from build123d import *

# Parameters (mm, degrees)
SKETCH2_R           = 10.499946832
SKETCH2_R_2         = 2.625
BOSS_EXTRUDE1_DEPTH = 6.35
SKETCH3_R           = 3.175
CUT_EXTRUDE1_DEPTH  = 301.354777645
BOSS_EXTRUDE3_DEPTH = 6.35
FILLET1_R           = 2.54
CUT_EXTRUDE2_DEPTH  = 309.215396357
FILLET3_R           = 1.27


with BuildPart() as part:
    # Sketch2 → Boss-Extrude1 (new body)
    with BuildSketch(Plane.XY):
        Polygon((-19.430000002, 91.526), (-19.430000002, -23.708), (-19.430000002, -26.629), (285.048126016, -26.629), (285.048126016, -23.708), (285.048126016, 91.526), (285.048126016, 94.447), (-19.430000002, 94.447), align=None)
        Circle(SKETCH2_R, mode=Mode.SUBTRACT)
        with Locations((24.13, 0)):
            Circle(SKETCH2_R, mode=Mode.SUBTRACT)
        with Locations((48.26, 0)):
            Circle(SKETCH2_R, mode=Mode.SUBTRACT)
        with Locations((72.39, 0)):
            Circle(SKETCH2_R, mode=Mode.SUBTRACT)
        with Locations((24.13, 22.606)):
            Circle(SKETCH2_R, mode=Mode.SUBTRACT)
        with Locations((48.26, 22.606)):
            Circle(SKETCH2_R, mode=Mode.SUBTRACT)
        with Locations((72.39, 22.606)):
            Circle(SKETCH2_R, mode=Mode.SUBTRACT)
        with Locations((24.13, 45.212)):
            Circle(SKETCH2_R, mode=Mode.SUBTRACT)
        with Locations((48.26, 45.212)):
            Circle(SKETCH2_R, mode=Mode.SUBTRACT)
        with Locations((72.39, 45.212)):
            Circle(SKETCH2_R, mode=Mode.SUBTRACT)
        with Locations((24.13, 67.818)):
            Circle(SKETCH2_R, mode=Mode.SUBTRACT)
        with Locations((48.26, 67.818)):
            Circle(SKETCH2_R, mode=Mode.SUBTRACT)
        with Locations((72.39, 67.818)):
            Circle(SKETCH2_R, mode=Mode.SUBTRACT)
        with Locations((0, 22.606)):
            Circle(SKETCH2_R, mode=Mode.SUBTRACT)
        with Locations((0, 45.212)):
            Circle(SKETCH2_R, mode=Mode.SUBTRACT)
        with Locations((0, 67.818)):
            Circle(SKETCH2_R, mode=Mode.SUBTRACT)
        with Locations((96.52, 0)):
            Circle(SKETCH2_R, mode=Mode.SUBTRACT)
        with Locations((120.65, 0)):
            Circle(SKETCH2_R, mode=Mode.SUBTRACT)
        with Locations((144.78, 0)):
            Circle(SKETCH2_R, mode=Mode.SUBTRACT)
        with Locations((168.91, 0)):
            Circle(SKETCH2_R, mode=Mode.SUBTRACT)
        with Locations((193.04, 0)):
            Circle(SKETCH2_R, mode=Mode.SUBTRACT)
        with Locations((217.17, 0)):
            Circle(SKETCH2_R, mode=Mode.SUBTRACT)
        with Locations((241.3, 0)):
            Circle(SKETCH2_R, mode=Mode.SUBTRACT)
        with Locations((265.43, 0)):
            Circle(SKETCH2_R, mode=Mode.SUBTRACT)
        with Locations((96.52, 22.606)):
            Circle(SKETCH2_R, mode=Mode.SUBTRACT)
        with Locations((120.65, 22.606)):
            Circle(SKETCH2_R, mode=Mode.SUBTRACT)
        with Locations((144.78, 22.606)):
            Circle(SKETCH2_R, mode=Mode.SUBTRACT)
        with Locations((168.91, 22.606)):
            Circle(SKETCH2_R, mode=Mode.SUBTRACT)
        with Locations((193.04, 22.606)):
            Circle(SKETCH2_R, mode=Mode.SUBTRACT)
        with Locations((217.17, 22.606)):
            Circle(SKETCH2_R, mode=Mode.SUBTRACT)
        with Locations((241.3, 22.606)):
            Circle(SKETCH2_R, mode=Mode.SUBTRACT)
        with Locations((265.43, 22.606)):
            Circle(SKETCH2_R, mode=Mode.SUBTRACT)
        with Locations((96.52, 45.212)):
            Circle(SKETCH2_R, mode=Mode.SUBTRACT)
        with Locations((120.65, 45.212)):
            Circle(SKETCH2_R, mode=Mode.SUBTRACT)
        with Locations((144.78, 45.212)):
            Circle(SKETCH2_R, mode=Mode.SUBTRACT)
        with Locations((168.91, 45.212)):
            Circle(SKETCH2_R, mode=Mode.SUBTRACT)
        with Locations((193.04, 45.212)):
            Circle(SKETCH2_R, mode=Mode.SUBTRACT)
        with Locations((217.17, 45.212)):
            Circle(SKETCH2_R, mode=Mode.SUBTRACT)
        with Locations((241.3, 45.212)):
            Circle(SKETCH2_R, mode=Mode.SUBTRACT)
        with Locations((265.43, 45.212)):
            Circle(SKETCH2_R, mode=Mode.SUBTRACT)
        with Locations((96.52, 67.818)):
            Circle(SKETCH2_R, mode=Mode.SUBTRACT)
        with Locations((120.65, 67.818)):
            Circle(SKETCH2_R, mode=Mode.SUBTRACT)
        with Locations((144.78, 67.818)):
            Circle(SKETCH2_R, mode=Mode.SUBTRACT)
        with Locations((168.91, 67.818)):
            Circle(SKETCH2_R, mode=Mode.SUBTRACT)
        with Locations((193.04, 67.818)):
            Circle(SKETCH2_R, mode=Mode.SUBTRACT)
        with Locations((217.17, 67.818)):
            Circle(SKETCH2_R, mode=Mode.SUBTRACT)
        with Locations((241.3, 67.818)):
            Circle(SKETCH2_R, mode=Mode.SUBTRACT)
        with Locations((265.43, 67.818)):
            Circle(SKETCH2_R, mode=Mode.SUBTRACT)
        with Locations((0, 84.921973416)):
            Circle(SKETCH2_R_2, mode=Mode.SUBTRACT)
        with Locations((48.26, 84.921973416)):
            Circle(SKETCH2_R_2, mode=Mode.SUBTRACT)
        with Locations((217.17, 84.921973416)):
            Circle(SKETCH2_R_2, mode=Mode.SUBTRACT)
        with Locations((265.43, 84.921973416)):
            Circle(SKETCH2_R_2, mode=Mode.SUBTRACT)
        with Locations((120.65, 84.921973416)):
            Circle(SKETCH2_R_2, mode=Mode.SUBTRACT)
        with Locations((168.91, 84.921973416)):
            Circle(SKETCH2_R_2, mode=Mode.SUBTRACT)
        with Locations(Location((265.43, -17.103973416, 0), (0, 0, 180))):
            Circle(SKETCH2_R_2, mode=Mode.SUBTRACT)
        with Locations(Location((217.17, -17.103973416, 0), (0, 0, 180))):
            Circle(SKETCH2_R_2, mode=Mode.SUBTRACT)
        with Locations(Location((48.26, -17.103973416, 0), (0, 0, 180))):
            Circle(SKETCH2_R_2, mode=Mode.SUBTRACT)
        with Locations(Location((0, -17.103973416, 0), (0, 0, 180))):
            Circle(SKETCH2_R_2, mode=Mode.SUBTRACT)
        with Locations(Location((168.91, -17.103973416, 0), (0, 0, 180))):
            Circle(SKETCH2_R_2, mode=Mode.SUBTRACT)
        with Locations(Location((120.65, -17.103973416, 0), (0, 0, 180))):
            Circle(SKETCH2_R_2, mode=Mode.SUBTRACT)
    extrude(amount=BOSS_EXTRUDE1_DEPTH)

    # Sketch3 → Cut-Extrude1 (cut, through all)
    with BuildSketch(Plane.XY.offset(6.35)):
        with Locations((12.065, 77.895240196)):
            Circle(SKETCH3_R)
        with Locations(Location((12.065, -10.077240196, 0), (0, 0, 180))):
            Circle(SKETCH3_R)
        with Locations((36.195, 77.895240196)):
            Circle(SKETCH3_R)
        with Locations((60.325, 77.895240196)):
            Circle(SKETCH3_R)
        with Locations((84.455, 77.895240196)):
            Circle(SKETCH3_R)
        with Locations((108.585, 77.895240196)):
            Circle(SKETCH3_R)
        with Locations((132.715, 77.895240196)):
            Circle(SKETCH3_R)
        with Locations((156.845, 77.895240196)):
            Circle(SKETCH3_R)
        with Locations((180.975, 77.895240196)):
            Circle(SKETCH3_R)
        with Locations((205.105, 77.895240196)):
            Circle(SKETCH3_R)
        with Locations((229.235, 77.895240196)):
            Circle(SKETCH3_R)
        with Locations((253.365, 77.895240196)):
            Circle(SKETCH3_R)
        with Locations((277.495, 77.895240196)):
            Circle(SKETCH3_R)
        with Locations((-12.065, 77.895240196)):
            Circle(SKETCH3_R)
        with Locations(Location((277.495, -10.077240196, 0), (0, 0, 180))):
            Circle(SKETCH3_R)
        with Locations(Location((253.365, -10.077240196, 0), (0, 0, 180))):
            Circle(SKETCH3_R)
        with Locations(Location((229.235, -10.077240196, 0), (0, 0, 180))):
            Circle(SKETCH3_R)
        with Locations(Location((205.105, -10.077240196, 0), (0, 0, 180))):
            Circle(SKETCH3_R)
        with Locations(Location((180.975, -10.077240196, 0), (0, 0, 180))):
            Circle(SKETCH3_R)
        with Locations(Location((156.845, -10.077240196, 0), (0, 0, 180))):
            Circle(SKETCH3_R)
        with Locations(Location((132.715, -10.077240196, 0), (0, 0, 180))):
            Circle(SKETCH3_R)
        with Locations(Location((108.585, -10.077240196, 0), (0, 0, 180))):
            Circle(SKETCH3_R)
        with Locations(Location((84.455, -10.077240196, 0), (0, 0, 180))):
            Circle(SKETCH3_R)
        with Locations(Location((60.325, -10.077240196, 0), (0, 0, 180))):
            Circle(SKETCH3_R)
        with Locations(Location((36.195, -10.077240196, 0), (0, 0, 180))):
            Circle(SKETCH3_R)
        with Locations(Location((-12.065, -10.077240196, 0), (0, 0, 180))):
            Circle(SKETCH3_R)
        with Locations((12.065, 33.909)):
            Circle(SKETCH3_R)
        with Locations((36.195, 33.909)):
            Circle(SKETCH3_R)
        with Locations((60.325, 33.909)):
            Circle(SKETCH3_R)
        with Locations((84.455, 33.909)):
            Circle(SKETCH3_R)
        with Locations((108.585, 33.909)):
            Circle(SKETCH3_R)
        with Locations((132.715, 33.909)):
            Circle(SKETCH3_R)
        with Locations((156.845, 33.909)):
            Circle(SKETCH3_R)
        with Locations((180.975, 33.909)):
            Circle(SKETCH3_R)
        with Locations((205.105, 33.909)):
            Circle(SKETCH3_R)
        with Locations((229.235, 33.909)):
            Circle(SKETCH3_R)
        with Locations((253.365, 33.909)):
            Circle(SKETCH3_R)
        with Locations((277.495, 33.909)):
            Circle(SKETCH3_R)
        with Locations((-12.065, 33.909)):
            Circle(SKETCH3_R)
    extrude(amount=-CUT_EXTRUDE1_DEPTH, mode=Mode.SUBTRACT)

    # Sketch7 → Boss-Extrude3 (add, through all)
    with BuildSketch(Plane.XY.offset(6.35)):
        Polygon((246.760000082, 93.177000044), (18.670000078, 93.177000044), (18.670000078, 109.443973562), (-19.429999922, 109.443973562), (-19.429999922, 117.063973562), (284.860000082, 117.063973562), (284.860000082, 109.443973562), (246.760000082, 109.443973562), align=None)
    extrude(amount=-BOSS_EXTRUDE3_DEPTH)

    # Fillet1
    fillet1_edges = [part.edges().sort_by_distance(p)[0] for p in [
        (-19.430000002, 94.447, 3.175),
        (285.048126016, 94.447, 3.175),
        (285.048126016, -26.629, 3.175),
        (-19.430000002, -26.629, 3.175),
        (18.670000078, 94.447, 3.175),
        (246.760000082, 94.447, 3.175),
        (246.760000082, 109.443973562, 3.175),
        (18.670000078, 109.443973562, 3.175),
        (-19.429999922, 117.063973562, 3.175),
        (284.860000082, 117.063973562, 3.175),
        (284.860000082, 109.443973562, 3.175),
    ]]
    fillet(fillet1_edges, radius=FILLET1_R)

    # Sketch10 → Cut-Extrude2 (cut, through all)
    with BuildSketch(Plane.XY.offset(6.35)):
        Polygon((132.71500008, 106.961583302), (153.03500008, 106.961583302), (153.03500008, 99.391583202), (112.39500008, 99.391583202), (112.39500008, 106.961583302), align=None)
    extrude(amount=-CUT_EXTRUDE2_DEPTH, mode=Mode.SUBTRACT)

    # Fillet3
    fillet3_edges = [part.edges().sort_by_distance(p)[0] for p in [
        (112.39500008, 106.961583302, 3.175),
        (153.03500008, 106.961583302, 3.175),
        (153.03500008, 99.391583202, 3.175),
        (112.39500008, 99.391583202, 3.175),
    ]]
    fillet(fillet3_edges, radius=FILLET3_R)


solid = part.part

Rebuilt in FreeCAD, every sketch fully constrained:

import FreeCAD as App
import Part
import Sketcher
from FreeCAD import Vector
Q = App.Units.Quantity


def edges_at(feature, points):
    """Names of the edges that pass closest to the given points."""
    edges = feature.Shape.Edges
    near = lambda p: min(range(len(edges)), key=lambda i: edges[i].distToShape(Part.Vertex(*p))[0])
    return sorted({f"Edge{near(p) + 1}" for p in points})


def add_polygon(sketch, points):
    """Adds a closed chain of lines whose ends are joined by coincident constraints."""
    first, n = sketch.GeometryCount, len(points)
    for a, b in zip(points, points[1:] + points[:1]):
        sketch.addGeometry(Part.LineSegment(App.Vector(*a, 0), App.Vector(*b, 0)), False)
    for i in range(n):
        sketch.addConstraint(Sketcher.Constraint("Coincident", first + i, 2, first + (i + 1) % n, 1))

doc = App.newDocument("Part")
body = doc.addObject("PartDesign::Body", "Body")

sketch1 = body.newObject("Sketcher::SketchObject", "Sketch")
sketch1.AttachmentSupport = (doc.getObject("XY_Plane"), [""])
sketch1.MapMode = "FlatFace"
add_polygon(sketch1, [(-19.4, -26.6), (285, -26.6), (285, 94.4), (-19.4, 94.4)])
sketch1.addGeometry(Part.Circle(Vector(0, -17.1, 0), Vector(0, 0, 1), 2.6), False)
sketch1.addGeometry(Part.Circle(Vector(48.3, -17.1, 0), Vector(0, 0, 1), 2.6), False)
sketch1.addGeometry(Part.Circle(Vector(0, 0, 0), Vector(0, 0, 1), 10.5), False)
sketch1.addGeometry(Part.Circle(Vector(24.1, 0, 0), Vector(0, 0, 1), 10.5), False)
sketch1.addGeometry(Part.Circle(Vector(48.3, 0, 0), Vector(0, 0, 1), 10.5), False)
sketch1.addGeometry(Part.Circle(Vector(120.7, -17.1, 0), Vector(0, 0, 1), 2.6), False)
sketch1.addGeometry(Part.Circle(Vector(72.4, 0, 0), Vector(0, 0, 1), 10.5), False)
sketch1.addGeometry(Part.Circle(Vector(96.5, 0, 0), Vector(0, 0, 1), 10.5), False)
sketch1.addGeometry(Part.Circle(Vector(120.7, 0, 0), Vector(0, 0, 1), 10.5), False)
sketch1.addGeometry(Part.Circle(Vector(0, 22.6, 0), Vector(0, 0, 1), 10.5), False)
sketch1.addGeometry(Part.Circle(Vector(24.1, 22.6, 0), Vector(0, 0, 1), 10.5), False)
sketch1.addGeometry(Part.Circle(Vector(48.3, 22.6, 0), Vector(0, 0, 1), 10.5), False)
sketch1.addGeometry(Part.Circle(Vector(72.4, 22.6, 0), Vector(0, 0, 1), 10.5), False)
sketch1.addGeometry(Part.Circle(Vector(96.5, 22.6, 0), Vector(0, 0, 1), 10.5), False)
sketch1.addGeometry(Part.Circle(Vector(120.7, 22.6, 0), Vector(0, 0, 1), 10.5), False)
sketch1.addGeometry(Part.Circle(Vector(168.9, -17.1, 0), Vector(0, 0, 1), 2.6), False)
sketch1.addGeometry(Part.Circle(Vector(144.8, 0, 0), Vector(0, 0, 1), 10.5), False)
sketch1.addGeometry(Part.Circle(Vector(168.9, 0, 0), Vector(0, 0, 1), 10.5), False)
sketch1.addGeometry(Part.Circle(Vector(193, 0, 0), Vector(0, 0, 1), 10.5), False)
sketch1.addGeometry(Part.Circle(Vector(217.2, -17.1, 0), Vector(0, 0, 1), 2.6), False)
sketch1.addGeometry(Part.Circle(Vector(265.4, -17.1, 0), Vector(0, 0, 1), 2.6), False)
sketch1.addGeometry(Part.Circle(Vector(217.2, 0, 0), Vector(0, 0, 1), 10.5), False)
sketch1.addGeometry(Part.Circle(Vector(241.3, 0, 0), Vector(0, 0, 1), 10.5), False)
sketch1.addGeometry(Part.Circle(Vector(265.4, 0, 0), Vector(0, 0, 1), 10.5), False)
sketch1.addGeometry(Part.Circle(Vector(144.8, 22.6, 0), Vector(0, 0, 1), 10.5), False)
sketch1.addGeometry(Part.Circle(Vector(168.9, 22.6, 0), Vector(0, 0, 1), 10.5), False)
sketch1.addGeometry(Part.Circle(Vector(193, 22.6, 0), Vector(0, 0, 1), 10.5), False)
sketch1.addGeometry(Part.Circle(Vector(217.2, 22.6, 0), Vector(0, 0, 1), 10.5), False)
sketch1.addGeometry(Part.Circle(Vector(241.3, 22.6, 0), Vector(0, 0, 1), 10.5), False)
sketch1.addGeometry(Part.Circle(Vector(265.4, 22.6, 0), Vector(0, 0, 1), 10.5), False)
sketch1.addGeometry(Part.Circle(Vector(0, 45.2, 0), Vector(0, 0, 1), 10.5), False)
sketch1.addGeometry(Part.Circle(Vector(24.1, 45.2, 0), Vector(0, 0, 1), 10.5), False)
sketch1.addGeometry(Part.Circle(Vector(48.3, 45.2, 0), Vector(0, 0, 1), 10.5), False)
sketch1.addGeometry(Part.Circle(Vector(72.4, 45.2, 0), Vector(0, 0, 1), 10.5), False)
sketch1.addGeometry(Part.Circle(Vector(96.5, 45.2, 0), Vector(0, 0, 1), 10.5), False)
sketch1.addGeometry(Part.Circle(Vector(120.7, 45.2, 0), Vector(0, 0, 1), 10.5), False)
sketch1.addGeometry(Part.Circle(Vector(0, 67.8, 0), Vector(0, 0, 1), 10.5), False)
sketch1.addGeometry(Part.Circle(Vector(24.1, 67.8, 0), Vector(0, 0, 1), 10.5), False)
sketch1.addGeometry(Part.Circle(Vector(48.3, 67.8, 0), Vector(0, 0, 1), 10.5), False)
sketch1.addGeometry(Part.Circle(Vector(0, 84.9, 0), Vector(0, 0, 1), 2.6), False)
sketch1.addGeometry(Part.Circle(Vector(48.3, 84.9, 0), Vector(0, 0, 1), 2.6), False)
sketch1.addGeometry(Part.Circle(Vector(72.4, 67.8, 0), Vector(0, 0, 1), 10.5), False)
sketch1.addGeometry(Part.Circle(Vector(96.5, 67.8, 0), Vector(0, 0, 1), 10.5), False)
sketch1.addGeometry(Part.Circle(Vector(120.7, 67.8, 0), Vector(0, 0, 1), 10.5), False)
sketch1.addGeometry(Part.Circle(Vector(120.7, 84.9, 0), Vector(0, 0, 1), 2.6), False)
sketch1.addGeometry(Part.Circle(Vector(144.8, 45.2, 0), Vector(0, 0, 1), 10.5), False)
sketch1.addGeometry(Part.Circle(Vector(168.9, 45.2, 0), Vector(0, 0, 1), 10.5), False)
sketch1.addGeometry(Part.Circle(Vector(193, 45.2, 0), Vector(0, 0, 1), 10.5), False)
sketch1.addGeometry(Part.Circle(Vector(217.2, 45.2, 0), Vector(0, 0, 1), 10.5), False)
sketch1.addGeometry(Part.Circle(Vector(241.3, 45.2, 0), Vector(0, 0, 1), 10.5), False)
sketch1.addGeometry(Part.Circle(Vector(265.4, 45.2, 0), Vector(0, 0, 1), 10.5), False)
sketch1.addGeometry(Part.Circle(Vector(144.8, 67.8, 0), Vector(0, 0, 1), 10.5), False)
sketch1.addGeometry(Part.Circle(Vector(168.9, 67.8, 0), Vector(0, 0, 1), 10.5), False)
sketch1.addGeometry(Part.Circle(Vector(193, 67.8, 0), Vector(0, 0, 1), 10.5), False)
sketch1.addGeometry(Part.Circle(Vector(168.9, 84.9, 0), Vector(0, 0, 1), 2.6), False)
sketch1.addGeometry(Part.Circle(Vector(217.2, 67.8, 0), Vector(0, 0, 1), 10.5), False)
sketch1.addGeometry(Part.Circle(Vector(241.3, 67.8, 0), Vector(0, 0, 1), 10.5), False)
sketch1.addGeometry(Part.Circle(Vector(265.4, 67.8, 0), Vector(0, 0, 1), 10.5), False)
sketch1.addGeometry(Part.Circle(Vector(217.2, 84.9, 0), Vector(0, 0, 1), 2.6), False)
sketch1.addGeometry(Part.Circle(Vector(265.4, 84.9, 0), Vector(0, 0, 1), 2.6), False)
sketch1.addConstraint(Sketcher.Constraint("Horizontal", 0))
sketch1.addConstraint(Sketcher.Constraint("Vertical", 1))
sketch1.addConstraint(Sketcher.Constraint("Horizontal", 2))
sketch1.addConstraint(Sketcher.Constraint("Vertical", 3))
sketch1.addConstraint(Sketcher.Constraint("Coincident", 6, 3, -1, 1))
sketch1.addConstraint(Sketcher.Constraint("Equal", 4, 5))
sketch1.addConstraint(Sketcher.Constraint("Equal", 6, 7))
sketch1.addConstraint(Sketcher.Constraint("Equal", 7, 8))
sketch1.addConstraint(Sketcher.Constraint("Equal", 5, 9))
sketch1.addConstraint(Sketcher.Constraint("Equal", 8, 10))
sketch1.addConstraint(Sketcher.Constraint("Equal", 10, 11))
sketch1.addConstraint(Sketcher.Constraint("Equal", 11, 12))
sketch1.addConstraint(Sketcher.Constraint("Equal", 12, 13))
sketch1.addConstraint(Sketcher.Constraint("Equal", 13, 14))
sketch1.addConstraint(Sketcher.Constraint("Equal", 14, 15))
sketch1.addConstraint(Sketcher.Constraint("Equal", 15, 16))
sketch1.addConstraint(Sketcher.Constraint("Equal", 16, 17))
sketch1.addConstraint(Sketcher.Constraint("Equal", 17, 18))
sketch1.addConstraint(Sketcher.Constraint("Equal", 9, 19))
sketch1.addConstraint(Sketcher.Constraint("Equal", 18, 20))
sketch1.addConstraint(Sketcher.Constraint("Equal", 20, 21))
sketch1.addConstraint(Sketcher.Constraint("Equal", 21, 22))
sketch1.addConstraint(Sketcher.Constraint("Equal", 19, 23))
sketch1.addConstraint(Sketcher.Constraint("Equal", 23, 24))
sketch1.addConstraint(Sketcher.Constraint("Equal", 22, 25))
sketch1.addConstraint(Sketcher.Constraint("Equal", 25, 26))
sketch1.addConstraint(Sketcher.Constraint("Equal", 26, 27))
sketch1.addConstraint(Sketcher.Constraint("Equal", 27, 28))
sketch1.addConstraint(Sketcher.Constraint("Equal", 28, 29))
sketch1.addConstraint(Sketcher.Constraint("Equal", 29, 30))
sketch1.addConstraint(Sketcher.Constraint("Equal", 30, 31))
sketch1.addConstraint(Sketcher.Constraint("Equal", 31, 32))
sketch1.addConstraint(Sketcher.Constraint("Equal", 32, 33))
sketch1.addConstraint(Sketcher.Constraint("Equal", 33, 34))
sketch1.addConstraint(Sketcher.Constraint("Equal", 34, 35))
sketch1.addConstraint(Sketcher.Constraint("Equal", 35, 36))
sketch1.addConstraint(Sketcher.Constraint("Equal", 36, 37))
sketch1.addConstraint(Sketcher.Constraint("Equal", 37, 38))
sketch1.addConstraint(Sketcher.Constraint("Equal", 38, 39))
sketch1.addConstraint(Sketcher.Constraint("Equal", 39, 40))
sketch1.addConstraint(Sketcher.Constraint("Equal", 40, 41))
sketch1.addConstraint(Sketcher.Constraint("Equal", 41, 42))
sketch1.addConstraint(Sketcher.Constraint("Equal", 24, 43))
sketch1.addConstraint(Sketcher.Constraint("Equal", 43, 44))
sketch1.addConstraint(Sketcher.Constraint("Equal", 42, 45))
sketch1.addConstraint(Sketcher.Constraint("Equal", 45, 46))
sketch1.addConstraint(Sketcher.Constraint("Equal", 46, 47))
sketch1.addConstraint(Sketcher.Constraint("Equal", 44, 48))
sketch1.addConstraint(Sketcher.Constraint("Equal", 47, 49))
sketch1.addConstraint(Sketcher.Constraint("Equal", 49, 50))
sketch1.addConstraint(Sketcher.Constraint("Equal", 50, 51))
sketch1.addConstraint(Sketcher.Constraint("Equal", 51, 52))
sketch1.addConstraint(Sketcher.Constraint("Equal", 52, 53))
sketch1.addConstraint(Sketcher.Constraint("Equal", 53, 54))
sketch1.addConstraint(Sketcher.Constraint("Equal", 54, 55))
sketch1.addConstraint(Sketcher.Constraint("Equal", 55, 56))
sketch1.addConstraint(Sketcher.Constraint("Equal", 56, 57))
sketch1.addConstraint(Sketcher.Constraint("Equal", 48, 58))
sketch1.addConstraint(Sketcher.Constraint("Equal", 57, 59))
sketch1.addConstraint(Sketcher.Constraint("Equal", 59, 60))
sketch1.addConstraint(Sketcher.Constraint("Equal", 60, 61))
sketch1.addConstraint(Sketcher.Constraint("Equal", 58, 62))
sketch1.addConstraint(Sketcher.Constraint("Equal", 62, 63))
sketch1.addConstraint(Sketcher.Constraint("PointOnObject", 4, 3, -2))
sketch1.addConstraint(Sketcher.Constraint("PointOnObject", 7, 3, -1))
sketch1.addConstraint(Sketcher.Constraint("PointOnObject", 8, 3, -1))
sketch1.addConstraint(Sketcher.Constraint("PointOnObject", 10, 3, -1))
sketch1.addConstraint(Sketcher.Constraint("PointOnObject", 11, 3, -1))
sketch1.addConstraint(Sketcher.Constraint("PointOnObject", 12, 3, -1))
sketch1.addConstraint(Sketcher.Constraint("PointOnObject", 13, 3, -2))
sketch1.addConstraint(Sketcher.Constraint("PointOnObject", 20, 3, -1))
sketch1.addConstraint(Sketcher.Constraint("PointOnObject", 21, 3, -1))
sketch1.addConstraint(Sketcher.Constraint("PointOnObject", 22, 3, -1))
sketch1.addConstraint(Sketcher.Constraint("PointOnObject", 25, 3, -1))
sketch1.addConstraint(Sketcher.Constraint("PointOnObject", 26, 3, -1))
sketch1.addConstraint(Sketcher.Constraint("PointOnObject", 27, 3, -1))
sketch1.addConstraint(Sketcher.Constraint("PointOnObject", 34, 3, -2))
sketch1.addConstraint(Sketcher.Constraint("PointOnObject", 40, 3, -2))
sketch1.addConstraint(Sketcher.Constraint("PointOnObject", 43, 3, -2))
sketch1.addConstraint(Sketcher.Constraint("Horizontal", 4, 3, 5, 3))
sketch1.addConstraint(Sketcher.Constraint("Horizontal", 5, 3, 9, 3))
sketch1.addConstraint(Sketcher.Constraint("Horizontal", 13, 3, 14, 3))
sketch1.addConstraint(Sketcher.Constraint("Horizontal", 14, 3, 15, 3))
sketch1.addConstraint(Sketcher.Constraint("Horizontal", 15, 3, 16, 3))
sketch1.addConstraint(Sketcher.Constraint("Horizontal", 16, 3, 17, 3))
sketch1.addConstraint(Sketcher.Constraint("Horizontal", 17, 3, 18, 3))
sketch1.addConstraint(Sketcher.Constraint("Horizontal", 9, 3, 19, 3))
sketch1.addConstraint(Sketcher.Constraint("Horizontal", 19, 3, 23, 3))
sketch1.addConstraint(Sketcher.Constraint("Horizontal", 23, 3, 24, 3))
sketch1.addConstraint(Sketcher.Constraint("Horizontal", 18, 3, 28, 3))
sketch1.addConstraint(Sketcher.Constraint("Horizontal", 28, 3, 29, 3))
sketch1.addConstraint(Sketcher.Constraint("Horizontal", 29, 3, 30, 3))
sketch1.addConstraint(Sketcher.Constraint("Horizontal", 30, 3, 31, 3))
sketch1.addConstraint(Sketcher.Constraint("Horizontal", 31, 3, 32, 3))
sketch1.addConstraint(Sketcher.Constraint("Horizontal", 32, 3, 33, 3))
sketch1.addConstraint(Sketcher.Constraint("Horizontal", 34, 3, 35, 3))
sketch1.addConstraint(Sketcher.Constraint("Horizontal", 35, 3, 36, 3))
sketch1.addConstraint(Sketcher.Constraint("Horizontal", 36, 3, 37, 3))
sketch1.addConstraint(Sketcher.Constraint("Horizontal", 37, 3, 38, 3))
sketch1.addConstraint(Sketcher.Constraint("Horizontal", 38, 3, 39, 3))
sketch1.addConstraint(Sketcher.Constraint("Horizontal", 40, 3, 41, 3))
sketch1.addConstraint(Sketcher.Constraint("Horizontal", 41, 3, 42, 3))
sketch1.addConstraint(Sketcher.Constraint("Horizontal", 43, 3, 44, 3))
sketch1.addConstraint(Sketcher.Constraint("Horizontal", 42, 3, 45, 3))
sketch1.addConstraint(Sketcher.Constraint("Horizontal", 45, 3, 46, 3))
sketch1.addConstraint(Sketcher.Constraint("Horizontal", 46, 3, 47, 3))
sketch1.addConstraint(Sketcher.Constraint("Horizontal", 44, 3, 48, 3))
sketch1.addConstraint(Sketcher.Constraint("Horizontal", 39, 3, 49, 3))
sketch1.addConstraint(Sketcher.Constraint("Horizontal", 49, 3, 50, 3))
sketch1.addConstraint(Sketcher.Constraint("Horizontal", 50, 3, 51, 3))
sketch1.addConstraint(Sketcher.Constraint("Horizontal", 51, 3, 52, 3))
sketch1.addConstraint(Sketcher.Constraint("Horizontal", 52, 3, 53, 3))
sketch1.addConstraint(Sketcher.Constraint("Horizontal", 53, 3, 54, 3))
sketch1.addConstraint(Sketcher.Constraint("Horizontal", 47, 3, 55, 3))
sketch1.addConstraint(Sketcher.Constraint("Horizontal", 55, 3, 56, 3))
sketch1.addConstraint(Sketcher.Constraint("Horizontal", 56, 3, 57, 3))
sketch1.addConstraint(Sketcher.Constraint("Horizontal", 48, 3, 58, 3))
sketch1.addConstraint(Sketcher.Constraint("Horizontal", 57, 3, 59, 3))
sketch1.addConstraint(Sketcher.Constraint("Horizontal", 59, 3, 60, 3))
sketch1.addConstraint(Sketcher.Constraint("Horizontal", 60, 3, 61, 3))
sketch1.addConstraint(Sketcher.Constraint("Horizontal", 58, 3, 62, 3))
sketch1.addConstraint(Sketcher.Constraint("Horizontal", 62, 3, 63, 3))
sketch1.addConstraint(Sketcher.Constraint("Vertical", 5, 3, 8, 3))
sketch1.addConstraint(Sketcher.Constraint("Vertical", 9, 3, 12, 3))
sketch1.addConstraint(Sketcher.Constraint("Vertical", 7, 3, 14, 3))
sketch1.addConstraint(Sketcher.Constraint("Vertical", 8, 3, 15, 3))
sketch1.addConstraint(Sketcher.Constraint("Vertical", 10, 3, 16, 3))
sketch1.addConstraint(Sketcher.Constraint("Vertical", 11, 3, 17, 3))
sketch1.addConstraint(Sketcher.Constraint("Vertical", 12, 3, 18, 3))
sketch1.addConstraint(Sketcher.Constraint("Vertical", 19, 3, 21, 3))
sketch1.addConstraint(Sketcher.Constraint("Vertical", 23, 3, 25, 3))
sketch1.addConstraint(Sketcher.Constraint("Vertical", 24, 3, 27, 3))
sketch1.addConstraint(Sketcher.Constraint("Vertical", 20, 3, 28, 3))
sketch1.addConstraint(Sketcher.Constraint("Vertical", 21, 3, 29, 3))
sketch1.addConstraint(Sketcher.Constraint("Vertical", 22, 3, 30, 3))
sketch1.addConstraint(Sketcher.Constraint("Vertical", 25, 3, 31, 3))
sketch1.addConstraint(Sketcher.Constraint("Vertical", 26, 3, 32, 3))
sketch1.addConstraint(Sketcher.Constraint("Vertical", 27, 3, 33, 3))
sketch1.addConstraint(Sketcher.Constraint("Vertical", 14, 3, 35, 3))
sketch1.addConstraint(Sketcher.Constraint("Vertical", 15, 3, 36, 3))
sketch1.addConstraint(Sketcher.Constraint("Vertical", 16, 3, 37, 3))
sketch1.addConstraint(Sketcher.Constraint("Vertical", 17, 3, 38, 3))
sketch1.addConstraint(Sketcher.Constraint("Vertical", 18, 3, 39, 3))
sketch1.addConstraint(Sketcher.Constraint("Vertical", 35, 3, 41, 3))
sketch1.addConstraint(Sketcher.Constraint("Vertical", 36, 3, 42, 3))
sketch1.addConstraint(Sketcher.Constraint("Vertical", 42, 3, 44, 3))
sketch1.addConstraint(Sketcher.Constraint("Vertical", 37, 3, 45, 3))
sketch1.addConstraint(Sketcher.Constraint("Vertical", 38, 3, 46, 3))
sketch1.addConstraint(Sketcher.Constraint("Vertical", 39, 3, 47, 3))
sketch1.addConstraint(Sketcher.Constraint("Vertical", 47, 3, 48, 3))
sketch1.addConstraint(Sketcher.Constraint("Vertical", 28, 3, 49, 3))
sketch1.addConstraint(Sketcher.Constraint("Vertical", 29, 3, 50, 3))
sketch1.addConstraint(Sketcher.Constraint("Vertical", 30, 3, 51, 3))
sketch1.addConstraint(Sketcher.Constraint("Vertical", 31, 3, 52, 3))
sketch1.addConstraint(Sketcher.Constraint("Vertical", 32, 3, 53, 3))
sketch1.addConstraint(Sketcher.Constraint("Vertical", 33, 3, 54, 3))
sketch1.addConstraint(Sketcher.Constraint("Vertical", 49, 3, 55, 3))
sketch1.addConstraint(Sketcher.Constraint("Vertical", 50, 3, 56, 3))
sketch1.addConstraint(Sketcher.Constraint("Vertical", 51, 3, 57, 3))
sketch1.addConstraint(Sketcher.Constraint("Vertical", 56, 3, 58, 3))
sketch1.addConstraint(Sketcher.Constraint("Vertical", 52, 3, 59, 3))
sketch1.addConstraint(Sketcher.Constraint("Vertical", 53, 3, 60, 3))
sketch1.addConstraint(Sketcher.Constraint("Vertical", 54, 3, 61, 3))
sketch1.addConstraint(Sketcher.Constraint("Vertical", 59, 3, 62, 3))
sketch1.addConstraint(Sketcher.Constraint("Vertical", 61, 3, 63, 3))
sketch1.addConstraint(Sketcher.Constraint("DistanceX", -1, 1, 5, 3, Q("1.9 in")))
sketch1.addConstraint(Sketcher.Constraint("DistanceX", -1, 1, 11, 3, Q("3.8 in")))
sketch1.addConstraint(Sketcher.Constraint("DistanceX", -1, 1, 20, 3, Q("5.7 in")))
sketch1.addConstraint(Sketcher.Constraint("DistanceX", -1, 1, 22, 3, Q("7.6 in")))
sketch1.addConstraint(Sketcher.Constraint("DistanceX", -1, 1, 26, 3, Q("9.5 in")))
sketch1.addConstraint(Sketcher.Constraint("Diameter", 4, Q("5.25 mm")))
sketch1.addConstraint(Sketcher.Constraint("DistanceX", -1, 1, 7, 3, Q("0.95 in")))
sketch1.addConstraint(Sketcher.Constraint("DistanceX", -1, 1, 9, 3, Q("4.75 in")))
sketch1.addConstraint(Sketcher.Constraint("DistanceX", -1, 1, 10, 3, Q("2.85 in")))
sketch1.addConstraint(Sketcher.Constraint("DistanceY", -1, 1, 13, 3, Q("0.89 in")))
sketch1.addConstraint(Sketcher.Constraint("DistanceX", -1, 1, 19, 3, Q("6.65 in")))
sketch1.addConstraint(Sketcher.Constraint("DistanceX", -1, 1, 23, 3, Q("8.55 in")))
sketch1.addConstraint(Sketcher.Constraint("DistanceX", -1, 1, 24, 3, Q("10.45 in")))
sketch1.addConstraint(Sketcher.Constraint("DistanceY", -1, 1, 34, 3, Q("1.78 in")))
sketch1.addConstraint(Sketcher.Constraint("DistanceY", -1, 1, 40, 3, Q("2.67 in")))
sketch1.addConstraint(Sketcher.Constraint("Diameter", 6, Q("20.999894 mm")))
sketch1.addConstraint(Sketcher.Constraint("DistanceY", 1, 1, 1, 2, Q("121.076 mm")))
sketch1.addConstraint(Sketcher.Constraint("DistanceY", 0, 2, -1, 1, Q("26.629 mm")))
sketch1.addConstraint(Sketcher.Constraint("DistanceX", 2, 2, -1, 1, Q("19.43 mm")))
sketch1.addConstraint(Sketcher.Constraint("DistanceX", 0, 1, 0, 2, Q("304.478126 mm")))
sketch1.addConstraint(Sketcher.Constraint("DistanceY", 4, 3, -1, 1, Q("17.103973 mm")))
sketch1.addConstraint(Sketcher.Constraint("DistanceY", -1, 1, 43, 3, Q("84.921973 mm")))
pad1 = body.newObject("PartDesign::Pad", "Pad")
pad1.Profile = sketch1
pad1.Length = Q("0.25 in")

sketch2 = body.newObject("Sketcher::SketchObject", "Sketch001")
sketch2.AttachmentSupport = (doc.getObject("XY_Plane"), [""])
sketch2.MapMode = "FlatFace"
sketch2.AttachmentOffset = App.Placement(Vector(0, 0, 0.25 * 25.4), App.Rotation())
sketch2.addGeometry(Part.Circle(Vector(12.1, 77.9, 0), Vector(0, 0, 1), 3.2), False)
sketch2.addGeometry(Part.Circle(Vector(12.1, -10.1, 0), Vector(0, 0, 1), 3.2), False)
sketch2.addGeometry(Part.Circle(Vector(36.2, 77.9, 0), Vector(0, 0, 1), 3.2), False)
sketch2.addGeometry(Part.Circle(Vector(60.3, 77.9, 0), Vector(0, 0, 1), 3.2), False)
sketch2.addGeometry(Part.Circle(Vector(84.5, 77.9, 0), Vector(0, 0, 1), 3.2), False)
sketch2.addGeometry(Part.Circle(Vector(108.6, 77.9, 0), Vector(0, 0, 1), 3.2), False)
sketch2.addGeometry(Part.Circle(Vector(132.7, 77.9, 0), Vector(0, 0, 1), 3.2), False)
sketch2.addGeometry(Part.Circle(Vector(156.8, 77.9, 0), Vector(0, 0, 1), 3.2), False)
sketch2.addGeometry(Part.Circle(Vector(181, 77.9, 0), Vector(0, 0, 1), 3.2), False)
sketch2.addGeometry(Part.Circle(Vector(205.1, 77.9, 0), Vector(0, 0, 1), 3.2), False)
sketch2.addGeometry(Part.Circle(Vector(229.2, 77.9, 0), Vector(0, 0, 1), 3.2), False)
sketch2.addGeometry(Part.Circle(Vector(253.4, 77.9, 0), Vector(0, 0, 1), 3.2), False)
sketch2.addGeometry(Part.Circle(Vector(277.5, 77.9, 0), Vector(0, 0, 1), 3.2), False)
sketch2.addGeometry(Part.Circle(Vector(-12.1, 77.9, 0), Vector(0, 0, 1), 3.2), False)
sketch2.addGeometry(Part.Circle(Vector(277.5, -10.1, 0), Vector(0, 0, 1), 3.2), False)
sketch2.addGeometry(Part.Circle(Vector(253.4, -10.1, 0), Vector(0, 0, 1), 3.2), False)
sketch2.addGeometry(Part.Circle(Vector(229.2, -10.1, 0), Vector(0, 0, 1), 3.2), False)
sketch2.addGeometry(Part.Circle(Vector(205.1, -10.1, 0), Vector(0, 0, 1), 3.2), False)
sketch2.addGeometry(Part.Circle(Vector(181, -10.1, 0), Vector(0, 0, 1), 3.2), False)
sketch2.addGeometry(Part.Circle(Vector(156.8, -10.1, 0), Vector(0, 0, 1), 3.2), False)
sketch2.addGeometry(Part.Circle(Vector(132.7, -10.1, 0), Vector(0, 0, 1), 3.2), False)
sketch2.addGeometry(Part.Circle(Vector(108.6, -10.1, 0), Vector(0, 0, 1), 3.2), False)
sketch2.addGeometry(Part.Circle(Vector(84.5, -10.1, 0), Vector(0, 0, 1), 3.2), False)
sketch2.addGeometry(Part.Circle(Vector(60.3, -10.1, 0), Vector(0, 0, 1), 3.2), False)
sketch2.addGeometry(Part.Circle(Vector(36.2, -10.1, 0), Vector(0, 0, 1), 3.2), False)
sketch2.addGeometry(Part.Circle(Vector(-12.1, -10.1, 0), Vector(0, 0, 1), 3.2), False)
sketch2.addGeometry(Part.Circle(Vector(12.1, 33.9, 0), Vector(0, 0, 1), 3.2), False)
sketch2.addGeometry(Part.Circle(Vector(36.2, 33.9, 0), Vector(0, 0, 1), 3.2), False)
sketch2.addGeometry(Part.Circle(Vector(60.3, 33.9, 0), Vector(0, 0, 1), 3.2), False)
sketch2.addGeometry(Part.Circle(Vector(84.5, 33.9, 0), Vector(0, 0, 1), 3.2), False)
sketch2.addGeometry(Part.Circle(Vector(108.6, 33.9, 0), Vector(0, 0, 1), 3.2), False)
sketch2.addGeometry(Part.Circle(Vector(132.7, 33.9, 0), Vector(0, 0, 1), 3.2), False)
sketch2.addGeometry(Part.Circle(Vector(156.8, 33.9, 0), Vector(0, 0, 1), 3.2), False)
sketch2.addGeometry(Part.Circle(Vector(181, 33.9, 0), Vector(0, 0, 1), 3.2), False)
sketch2.addGeometry(Part.Circle(Vector(205.1, 33.9, 0), Vector(0, 0, 1), 3.2), False)
sketch2.addGeometry(Part.Circle(Vector(229.2, 33.9, 0), Vector(0, 0, 1), 3.2), False)
sketch2.addGeometry(Part.Circle(Vector(253.4, 33.9, 0), Vector(0, 0, 1), 3.2), False)
sketch2.addGeometry(Part.Circle(Vector(277.5, 33.9, 0), Vector(0, 0, 1), 3.2), False)
sketch2.addGeometry(Part.Circle(Vector(-12.1, 33.9, 0), Vector(0, 0, 1), 3.2), False)
sketch2.addConstraint(Sketcher.Constraint("Equal", 0, 1))
sketch2.addConstraint(Sketcher.Constraint("Equal", 1, 2))
sketch2.addConstraint(Sketcher.Constraint("Equal", 2, 3))
sketch2.addConstraint(Sketcher.Constraint("Equal", 3, 4))
sketch2.addConstraint(Sketcher.Constraint("Equal", 4, 5))
sketch2.addConstraint(Sketcher.Constraint("Equal", 5, 6))
sketch2.addConstraint(Sketcher.Constraint("Equal", 6, 7))
sketch2.addConstraint(Sketcher.Constraint("Equal", 7, 8))
sketch2.addConstraint(Sketcher.Constraint("Equal", 8, 9))
sketch2.addConstraint(Sketcher.Constraint("Equal", 9, 10))
sketch2.addConstraint(Sketcher.Constraint("Equal", 10, 11))
sketch2.addConstraint(Sketcher.Constraint("Equal", 11, 12))
sketch2.addConstraint(Sketcher.Constraint("Equal", 12, 13))
sketch2.addConstraint(Sketcher.Constraint("Equal", 13, 14))
sketch2.addConstraint(Sketcher.Constraint("Equal", 14, 15))
sketch2.addConstraint(Sketcher.Constraint("Equal", 15, 16))
sketch2.addConstraint(Sketcher.Constraint("Equal", 16, 17))
sketch2.addConstraint(Sketcher.Constraint("Equal", 17, 18))
sketch2.addConstraint(Sketcher.Constraint("Equal", 18, 19))
sketch2.addConstraint(Sketcher.Constraint("Equal", 19, 20))
sketch2.addConstraint(Sketcher.Constraint("Equal", 20, 21))
sketch2.addConstraint(Sketcher.Constraint("Equal", 21, 22))
sketch2.addConstraint(Sketcher.Constraint("Equal", 22, 23))
sketch2.addConstraint(Sketcher.Constraint("Equal", 23, 24))
sketch2.addConstraint(Sketcher.Constraint("Equal", 24, 25))
sketch2.addConstraint(Sketcher.Constraint("Equal", 25, 26))
sketch2.addConstraint(Sketcher.Constraint("Equal", 26, 27))
sketch2.addConstraint(Sketcher.Constraint("Equal", 27, 28))
sketch2.addConstraint(Sketcher.Constraint("Equal", 28, 29))
sketch2.addConstraint(Sketcher.Constraint("Equal", 29, 30))
sketch2.addConstraint(Sketcher.Constraint("Equal", 30, 31))
sketch2.addConstraint(Sketcher.Constraint("Equal", 31, 32))
sketch2.addConstraint(Sketcher.Constraint("Equal", 32, 33))
sketch2.addConstraint(Sketcher.Constraint("Equal", 33, 34))
sketch2.addConstraint(Sketcher.Constraint("Equal", 34, 35))
sketch2.addConstraint(Sketcher.Constraint("Equal", 35, 36))
sketch2.addConstraint(Sketcher.Constraint("Equal", 36, 37))
sketch2.addConstraint(Sketcher.Constraint("Equal", 37, 38))
sketch2.addConstraint(Sketcher.Constraint("Symmetric", 0, 3, 13, 3, -2))
sketch2.addConstraint(Sketcher.Constraint("Symmetric", 1, 3, 25, 3, -2))
sketch2.addConstraint(Sketcher.Constraint("Symmetric", 26, 3, 38, 3, -2))
sketch2.addConstraint(Sketcher.Constraint("Horizontal", 0, 3, 2, 3))
sketch2.addConstraint(Sketcher.Constraint("Horizontal", 2, 3, 3, 3))
sketch2.addConstraint(Sketcher.Constraint("Horizontal", 3, 3, 4, 3))
sketch2.addConstraint(Sketcher.Constraint("Horizontal", 4, 3, 5, 3))
sketch2.addConstraint(Sketcher.Constraint("Horizontal", 5, 3, 6, 3))
sketch2.addConstraint(Sketcher.Constraint("Horizontal", 6, 3, 7, 3))
sketch2.addConstraint(Sketcher.Constraint("Horizontal", 7, 3, 8, 3))
sketch2.addConstraint(Sketcher.Constraint("Horizontal", 8, 3, 9, 3))
sketch2.addConstraint(Sketcher.Constraint("Horizontal", 9, 3, 10, 3))
sketch2.addConstraint(Sketcher.Constraint("Horizontal", 10, 3, 11, 3))
sketch2.addConstraint(Sketcher.Constraint("Horizontal", 11, 3, 12, 3))
sketch2.addConstraint(Sketcher.Constraint("Horizontal", 1, 3, 14, 3))
sketch2.addConstraint(Sketcher.Constraint("Horizontal", 14, 3, 15, 3))
sketch2.addConstraint(Sketcher.Constraint("Horizontal", 15, 3, 16, 3))
sketch2.addConstraint(Sketcher.Constraint("Horizontal", 16, 3, 17, 3))
sketch2.addConstraint(Sketcher.Constraint("Horizontal", 17, 3, 18, 3))
sketch2.addConstraint(Sketcher.Constraint("Horizontal", 18, 3, 19, 3))
sketch2.addConstraint(Sketcher.Constraint("Horizontal", 19, 3, 20, 3))
sketch2.addConstraint(Sketcher.Constraint("Horizontal", 20, 3, 21, 3))
sketch2.addConstraint(Sketcher.Constraint("Horizontal", 21, 3, 22, 3))
sketch2.addConstraint(Sketcher.Constraint("Horizontal", 22, 3, 23, 3))
sketch2.addConstraint(Sketcher.Constraint("Horizontal", 23, 3, 24, 3))
sketch2.addConstraint(Sketcher.Constraint("Horizontal", 26, 3, 27, 3))
sketch2.addConstraint(Sketcher.Constraint("Horizontal", 27, 3, 28, 3))
sketch2.addConstraint(Sketcher.Constraint("Horizontal", 28, 3, 29, 3))
sketch2.addConstraint(Sketcher.Constraint("Horizontal", 29, 3, 30, 3))
sketch2.addConstraint(Sketcher.Constraint("Horizontal", 30, 3, 31, 3))
sketch2.addConstraint(Sketcher.Constraint("Horizontal", 31, 3, 32, 3))
sketch2.addConstraint(Sketcher.Constraint("Horizontal", 32, 3, 33, 3))
sketch2.addConstraint(Sketcher.Constraint("Horizontal", 33, 3, 34, 3))
sketch2.addConstraint(Sketcher.Constraint("Horizontal", 34, 3, 35, 3))
sketch2.addConstraint(Sketcher.Constraint("Horizontal", 35, 3, 36, 3))
sketch2.addConstraint(Sketcher.Constraint("Horizontal", 36, 3, 37, 3))
sketch2.addConstraint(Sketcher.Constraint("Vertical", 0, 3, 1, 3))
sketch2.addConstraint(Sketcher.Constraint("Vertical", 12, 3, 14, 3))
sketch2.addConstraint(Sketcher.Constraint("Vertical", 11, 3, 15, 3))
sketch2.addConstraint(Sketcher.Constraint("Vertical", 10, 3, 16, 3))
sketch2.addConstraint(Sketcher.Constraint("Vertical", 9, 3, 17, 3))
sketch2.addConstraint(Sketcher.Constraint("Vertical", 8, 3, 18, 3))
sketch2.addConstraint(Sketcher.Constraint("Vertical", 7, 3, 19, 3))
sketch2.addConstraint(Sketcher.Constraint("Vertical", 6, 3, 20, 3))
sketch2.addConstraint(Sketcher.Constraint("Vertical", 5, 3, 21, 3))
sketch2.addConstraint(Sketcher.Constraint("Vertical", 4, 3, 22, 3))
sketch2.addConstraint(Sketcher.Constraint("Vertical", 3, 3, 23, 3))
sketch2.addConstraint(Sketcher.Constraint("Vertical", 2, 3, 24, 3))
sketch2.addConstraint(Sketcher.Constraint("Vertical", 1, 3, 26, 3))
sketch2.addConstraint(Sketcher.Constraint("Vertical", 24, 3, 27, 3))
sketch2.addConstraint(Sketcher.Constraint("Vertical", 23, 3, 28, 3))
sketch2.addConstraint(Sketcher.Constraint("Vertical", 22, 3, 29, 3))
sketch2.addConstraint(Sketcher.Constraint("Vertical", 21, 3, 30, 3))
sketch2.addConstraint(Sketcher.Constraint("Vertical", 20, 3, 31, 3))
sketch2.addConstraint(Sketcher.Constraint("Vertical", 19, 3, 32, 3))
sketch2.addConstraint(Sketcher.Constraint("Vertical", 18, 3, 33, 3))
sketch2.addConstraint(Sketcher.Constraint("Vertical", 17, 3, 34, 3))
sketch2.addConstraint(Sketcher.Constraint("Vertical", 16, 3, 35, 3))
sketch2.addConstraint(Sketcher.Constraint("Vertical", 15, 3, 36, 3))
sketch2.addConstraint(Sketcher.Constraint("Vertical", 14, 3, 37, 3))
sketch2.addConstraint(Sketcher.Constraint("Diameter", 0, Q("0.25 in")))
sketch2.addConstraint(Sketcher.Constraint("DistanceX", 0, 3, 3, 3, Q("1.9 in")))
sketch2.addConstraint(Sketcher.Constraint("DistanceX", 2, 3, 4, 3, Q("1.9 in")))
sketch2.addConstraint(Sketcher.Constraint("DistanceX", 3, 3, 5, 3, Q("1.9 in")))
sketch2.addConstraint(Sketcher.Constraint("DistanceX", 4, 3, 6, 3, Q("1.9 in")))
sketch2.addConstraint(Sketcher.Constraint("DistanceX", 5, 3, 7, 3, Q("1.9 in")))
sketch2.addConstraint(Sketcher.Constraint("DistanceX", 6, 3, 8, 3, Q("1.9 in")))
sketch2.addConstraint(Sketcher.Constraint("DistanceX", 7, 3, 9, 3, Q("1.9 in")))
sketch2.addConstraint(Sketcher.Constraint("DistanceX", 8, 3, 10, 3, Q("1.9 in")))
sketch2.addConstraint(Sketcher.Constraint("DistanceX", 9, 3, 11, 3, Q("1.9 in")))
sketch2.addConstraint(Sketcher.Constraint("DistanceX", 10, 3, 12, 3, Q("1.9 in")))
sketch2.addConstraint(Sketcher.Constraint("DistanceX", 13, 3, 2, 3, Q("1.9 in")))
sketch2.addConstraint(Sketcher.Constraint("DistanceX", 0, 3, 2, 3, Q("0.95 in")))
sketch2.addConstraint(Sketcher.Constraint("DistanceY", -1, 1, 26, 3, Q("1.335 in")))
sketch2.addConstraint(Sketcher.Constraint("DistanceY", -1, 1, 0, 3, Q("77.89524 mm")))
sketch2.addConstraint(Sketcher.Constraint("DistanceY", 1, 3, -1, 1, Q("10.07724 mm")))
pocket1 = body.newObject("PartDesign::Pocket", "Pocket")
pocket1.Profile = sketch2
pocket1.Type = "ThroughAll"

sketch3 = body.newObject("Sketcher::SketchObject", "Sketch002")
sketch3.AttachmentSupport = (doc.getObject("XY_Plane"), [""])
sketch3.MapMode = "FlatFace"
sketch3.AttachmentOffset = App.Placement(Vector(0, 0, 0.25 * 25.4), App.Rotation())
add_polygon(sketch3, [(19, 93), (247, 93), (247, 109), (285, 109), (285, 117), (-19, 117), (-19, 109), (19, 109)])
sketch3.addConstraint(Sketcher.Constraint("Horizontal", 0))
sketch3.addConstraint(Sketcher.Constraint("Vertical", 1))
sketch3.addConstraint(Sketcher.Constraint("Horizontal", 2))
sketch3.addConstraint(Sketcher.Constraint("Vertical", 3))
sketch3.addConstraint(Sketcher.Constraint("Horizontal", 4))
sketch3.addConstraint(Sketcher.Constraint("Vertical", 5))
sketch3.addConstraint(Sketcher.Constraint("Horizontal", 6))
sketch3.addConstraint(Sketcher.Constraint("Vertical", 7))
sketch3.addConstraint(Sketcher.Constraint("Horizontal", 2, 2, 5, 2))
sketch3.addConstraint(Sketcher.Constraint("Equal", 2, 6))
sketch3.addConstraint(Sketcher.Constraint("DistanceX", 2, 1, 2, 2, Q("1.5 in")))
sketch3.addConstraint(Sketcher.Constraint("DistanceY", 3, 1, 3, 2, Q("0.3 in")))
sketch3.addConstraint(Sketcher.Constraint("DistanceX", 0, 1, 0, 2, Q("228.09 mm")))
sketch3.addConstraint(Sketcher.Constraint("DistanceX", -1, 1, 0, 2, Q("246.76 mm")))
sketch3.addConstraint(Sketcher.Constraint("DistanceY", -1, 1, 0, 2, Q("93.177 mm")))
sketch3.addConstraint(Sketcher.Constraint("DistanceY", 1, 1, 1, 2, Q("16.266974 mm")))
pad2 = body.newObject("PartDesign::Pad", "Pad001")
pad2.Profile = sketch3
pad2.Length = Q("0.25 in")
pad2.Reversed = True
doc.recompute()

fillet = body.newObject("PartDesign::Fillet", "Fillet")
fillet.Base = (pad2, edges_at(pad2, [
    (-19.43, 94.447, 3.175),
    (285.048, 94.447, 3.175),
    (285.048, -26.629, 3.175),
    (-19.43, -26.629, 3.175),
    (18.67, 94.447, 3.175),
    (246.76, 94.447, 3.175),
    (246.76, 109.444, 3.175),
    (18.67, 109.444, 3.175),
    (-19.43, 117.064, 3.175),
    (284.86, 117.064, 3.175),
    (284.86, 109.444, 3.175),
]))
fillet.Radius = Q("0.1 in")

sketch4 = body.newObject("Sketcher::SketchObject", "Sketch003")
sketch4.AttachmentSupport = (doc.getObject("XY_Plane"), [""])
sketch4.MapMode = "FlatFace"
sketch4.AttachmentOffset = App.Placement(Vector(0, 0, 0.25 * 25.4), App.Rotation())
add_polygon(sketch4, [(153, 107), (112, 107), (112, 99), (153, 99)])
sketch4.addConstraint(Sketcher.Constraint("Horizontal", 0))
sketch4.addConstraint(Sketcher.Constraint("Vertical", 1))
sketch4.addConstraint(Sketcher.Constraint("Horizontal", 2))
sketch4.addConstraint(Sketcher.Constraint("Vertical", 3))
sketch4.addConstraint(Sketcher.Constraint("DistanceX", 0, 2, 0, 1, Q("1.6 in")))
sketch4.addConstraint(Sketcher.Constraint("DistanceX", -1, 1, 0, 2, Q("4.425 in")))
sketch4.addConstraint(Sketcher.Constraint("DistanceY", 1, 2, 1, 1, Q("7.57 mm")))
sketch4.addConstraint(Sketcher.Constraint("DistanceY", -1, 1, 0, 2, Q("106.961583 mm")))
pocket2 = body.newObject("PartDesign::Pocket", "Pocket001")
pocket2.Profile = sketch4
pocket2.Type = "ThroughAll"
doc.recompute()

fillet2 = body.newObject("PartDesign::Fillet", "Fillet001")
fillet2.Base = (pocket2, edges_at(pocket2, [
    (112.395, 106.962, 3.175),
    (153.035, 106.962, 3.175),
    (153.035, 99.392, 3.175),
    (112.395, 99.392, 3.175),
]))
fillet2.Radius = Q("0.05 in")

doc.recompute()
